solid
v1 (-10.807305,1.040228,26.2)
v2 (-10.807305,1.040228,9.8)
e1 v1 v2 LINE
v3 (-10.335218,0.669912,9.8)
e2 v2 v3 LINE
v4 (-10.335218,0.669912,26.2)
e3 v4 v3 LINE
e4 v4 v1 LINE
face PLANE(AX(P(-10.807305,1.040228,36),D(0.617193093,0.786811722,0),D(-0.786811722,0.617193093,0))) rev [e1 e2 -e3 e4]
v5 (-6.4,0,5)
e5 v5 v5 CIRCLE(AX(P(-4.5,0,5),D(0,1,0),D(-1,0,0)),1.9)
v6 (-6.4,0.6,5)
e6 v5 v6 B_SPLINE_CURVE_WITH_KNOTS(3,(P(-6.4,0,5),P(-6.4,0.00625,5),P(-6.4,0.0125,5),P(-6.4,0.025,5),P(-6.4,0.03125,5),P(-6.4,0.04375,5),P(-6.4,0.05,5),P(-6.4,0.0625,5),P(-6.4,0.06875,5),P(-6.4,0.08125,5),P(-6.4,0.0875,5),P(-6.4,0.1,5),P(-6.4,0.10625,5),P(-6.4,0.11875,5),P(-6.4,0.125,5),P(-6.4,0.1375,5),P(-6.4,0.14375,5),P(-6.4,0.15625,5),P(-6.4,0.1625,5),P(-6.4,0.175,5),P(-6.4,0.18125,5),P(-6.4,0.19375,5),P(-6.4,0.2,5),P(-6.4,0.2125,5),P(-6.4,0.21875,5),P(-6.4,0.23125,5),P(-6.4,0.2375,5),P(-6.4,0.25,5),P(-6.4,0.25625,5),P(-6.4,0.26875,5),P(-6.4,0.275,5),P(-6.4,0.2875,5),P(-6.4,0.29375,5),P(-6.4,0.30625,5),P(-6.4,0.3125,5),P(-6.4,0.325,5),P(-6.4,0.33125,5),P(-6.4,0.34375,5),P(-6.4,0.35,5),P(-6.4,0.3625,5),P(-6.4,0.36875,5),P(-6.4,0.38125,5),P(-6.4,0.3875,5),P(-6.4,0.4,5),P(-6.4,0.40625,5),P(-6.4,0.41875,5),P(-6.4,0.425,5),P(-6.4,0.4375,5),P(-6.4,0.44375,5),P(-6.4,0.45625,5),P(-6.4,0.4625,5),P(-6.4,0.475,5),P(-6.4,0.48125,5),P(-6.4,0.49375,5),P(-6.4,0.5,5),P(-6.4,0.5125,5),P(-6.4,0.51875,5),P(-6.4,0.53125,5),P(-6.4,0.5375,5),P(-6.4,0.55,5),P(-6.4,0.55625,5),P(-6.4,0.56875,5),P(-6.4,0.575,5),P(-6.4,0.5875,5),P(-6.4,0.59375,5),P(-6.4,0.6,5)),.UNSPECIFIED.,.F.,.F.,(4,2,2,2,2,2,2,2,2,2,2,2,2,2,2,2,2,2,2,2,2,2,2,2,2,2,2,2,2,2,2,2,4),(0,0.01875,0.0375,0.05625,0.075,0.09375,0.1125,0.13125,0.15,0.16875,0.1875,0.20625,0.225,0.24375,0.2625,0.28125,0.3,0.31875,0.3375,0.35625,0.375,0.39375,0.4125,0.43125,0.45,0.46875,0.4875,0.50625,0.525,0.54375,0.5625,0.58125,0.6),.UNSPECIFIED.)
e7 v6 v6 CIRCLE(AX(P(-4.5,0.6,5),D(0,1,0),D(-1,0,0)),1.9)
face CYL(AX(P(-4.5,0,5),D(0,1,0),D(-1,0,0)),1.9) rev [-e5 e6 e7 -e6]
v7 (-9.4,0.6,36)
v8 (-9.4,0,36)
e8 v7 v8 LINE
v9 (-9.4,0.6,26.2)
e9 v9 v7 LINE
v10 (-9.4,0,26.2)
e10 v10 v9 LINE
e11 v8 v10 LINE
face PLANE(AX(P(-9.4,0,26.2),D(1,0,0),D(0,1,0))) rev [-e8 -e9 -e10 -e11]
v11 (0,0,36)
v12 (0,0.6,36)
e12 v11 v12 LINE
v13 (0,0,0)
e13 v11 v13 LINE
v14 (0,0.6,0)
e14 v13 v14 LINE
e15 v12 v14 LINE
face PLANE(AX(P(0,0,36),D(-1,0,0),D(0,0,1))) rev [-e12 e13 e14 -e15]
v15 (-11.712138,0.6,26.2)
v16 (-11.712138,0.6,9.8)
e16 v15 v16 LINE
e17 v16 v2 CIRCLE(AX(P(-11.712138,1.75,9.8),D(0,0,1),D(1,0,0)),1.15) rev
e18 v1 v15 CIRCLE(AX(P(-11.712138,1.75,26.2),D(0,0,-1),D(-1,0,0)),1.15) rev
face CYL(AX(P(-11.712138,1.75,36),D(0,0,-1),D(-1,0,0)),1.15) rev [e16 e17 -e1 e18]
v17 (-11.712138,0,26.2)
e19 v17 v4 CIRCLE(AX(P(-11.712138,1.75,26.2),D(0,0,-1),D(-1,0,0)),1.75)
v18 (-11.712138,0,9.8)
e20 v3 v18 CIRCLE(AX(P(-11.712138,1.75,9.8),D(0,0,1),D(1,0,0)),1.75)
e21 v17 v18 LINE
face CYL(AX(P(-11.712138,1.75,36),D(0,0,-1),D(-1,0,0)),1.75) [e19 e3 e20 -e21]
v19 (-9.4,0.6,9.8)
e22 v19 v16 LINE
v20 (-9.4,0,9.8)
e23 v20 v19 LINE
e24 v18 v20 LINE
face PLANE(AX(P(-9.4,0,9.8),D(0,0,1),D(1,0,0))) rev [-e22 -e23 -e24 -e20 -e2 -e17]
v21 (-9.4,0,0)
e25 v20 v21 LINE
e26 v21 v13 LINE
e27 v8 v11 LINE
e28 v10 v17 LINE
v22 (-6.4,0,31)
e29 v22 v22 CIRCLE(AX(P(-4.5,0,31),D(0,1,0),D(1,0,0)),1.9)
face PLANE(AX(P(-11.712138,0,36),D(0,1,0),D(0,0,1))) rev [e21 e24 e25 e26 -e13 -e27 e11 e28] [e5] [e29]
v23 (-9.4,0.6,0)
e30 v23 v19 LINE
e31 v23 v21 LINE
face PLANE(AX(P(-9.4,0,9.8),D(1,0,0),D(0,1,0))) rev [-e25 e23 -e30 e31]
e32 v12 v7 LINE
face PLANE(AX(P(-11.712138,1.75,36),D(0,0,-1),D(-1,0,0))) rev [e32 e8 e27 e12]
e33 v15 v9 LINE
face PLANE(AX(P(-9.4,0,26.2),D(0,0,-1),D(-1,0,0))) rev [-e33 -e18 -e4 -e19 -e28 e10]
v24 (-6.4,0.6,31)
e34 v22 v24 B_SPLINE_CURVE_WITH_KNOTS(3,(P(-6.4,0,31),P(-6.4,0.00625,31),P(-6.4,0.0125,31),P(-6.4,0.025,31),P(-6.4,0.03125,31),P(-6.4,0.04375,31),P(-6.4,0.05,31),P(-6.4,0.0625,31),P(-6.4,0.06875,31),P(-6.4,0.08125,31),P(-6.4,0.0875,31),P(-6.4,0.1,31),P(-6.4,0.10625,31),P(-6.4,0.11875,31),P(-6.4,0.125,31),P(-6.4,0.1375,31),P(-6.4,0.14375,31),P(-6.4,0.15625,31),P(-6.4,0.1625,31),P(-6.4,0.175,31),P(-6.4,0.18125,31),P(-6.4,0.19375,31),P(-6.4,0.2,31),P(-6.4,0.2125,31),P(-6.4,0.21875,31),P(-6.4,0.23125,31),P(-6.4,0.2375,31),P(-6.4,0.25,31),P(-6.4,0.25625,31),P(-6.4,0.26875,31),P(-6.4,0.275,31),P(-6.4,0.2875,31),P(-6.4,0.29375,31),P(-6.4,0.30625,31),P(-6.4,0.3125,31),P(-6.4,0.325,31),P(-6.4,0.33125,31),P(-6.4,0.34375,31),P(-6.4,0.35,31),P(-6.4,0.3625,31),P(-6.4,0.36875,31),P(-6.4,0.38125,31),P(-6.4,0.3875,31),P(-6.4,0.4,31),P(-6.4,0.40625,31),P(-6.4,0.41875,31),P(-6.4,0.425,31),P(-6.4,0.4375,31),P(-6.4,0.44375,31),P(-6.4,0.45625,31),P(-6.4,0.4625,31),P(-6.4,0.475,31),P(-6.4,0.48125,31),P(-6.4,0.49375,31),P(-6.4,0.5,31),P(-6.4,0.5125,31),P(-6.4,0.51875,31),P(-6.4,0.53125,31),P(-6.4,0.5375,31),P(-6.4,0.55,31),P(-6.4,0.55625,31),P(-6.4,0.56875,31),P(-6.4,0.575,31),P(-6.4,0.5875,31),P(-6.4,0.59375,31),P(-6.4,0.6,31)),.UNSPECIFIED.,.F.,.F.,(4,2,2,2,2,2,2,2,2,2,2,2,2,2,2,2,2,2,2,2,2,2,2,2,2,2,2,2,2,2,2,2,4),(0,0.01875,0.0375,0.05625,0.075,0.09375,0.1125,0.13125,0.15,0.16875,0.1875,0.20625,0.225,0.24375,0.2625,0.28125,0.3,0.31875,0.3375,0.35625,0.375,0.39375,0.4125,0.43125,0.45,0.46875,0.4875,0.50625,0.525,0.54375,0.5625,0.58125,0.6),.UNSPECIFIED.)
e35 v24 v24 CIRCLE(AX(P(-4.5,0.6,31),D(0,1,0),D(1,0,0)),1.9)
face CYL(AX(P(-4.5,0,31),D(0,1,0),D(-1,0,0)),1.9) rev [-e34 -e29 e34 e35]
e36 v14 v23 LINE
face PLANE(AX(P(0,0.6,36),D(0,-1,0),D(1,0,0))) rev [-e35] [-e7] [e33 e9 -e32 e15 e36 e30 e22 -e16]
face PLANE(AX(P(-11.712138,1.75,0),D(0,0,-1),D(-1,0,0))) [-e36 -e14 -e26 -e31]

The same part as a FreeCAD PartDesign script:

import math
import FreeCAD as App
import Part
import Sketcher

V = App.Vector
Q = App.Units.Quantity

doc = App.newDocument("Part")
params = doc.addObject("Spreadsheet::Sheet", "Params")
for row, (alias, value) in enumerate([
    ("sketch1_radius", "1.15 mm"),
    ("sketch1_radius2", "1.75 mm"),
    ("pad1_length", "36 mm"),
    ("sketch2_diameter", "3.8 mm"),
], start=1):
    params.set(f"A{row}", alias)
    params.set(f"B{row}", "=" + value)
    params.setAlias(f"B{row}", alias)

body = doc.addObject("PartDesign::Body", "Body")

# Sketch on XY plane
sketch1 = body.newObject("Sketcher::SketchObject", "Sketch")
sketch1.AttachmentSupport = (doc.getObject("XY_Plane"), [""])
sketch1.MapMode = "FlatFace"
sketch1.addGeometry([
    Part.LineSegment(V(0, 0, 0), V(0, 0.6, 0)),  # 0
    Part.LineSegment(V(0, 0.6, 0), V(-11.712138, 0.6, 0)),  # 1
    Part.ArcOfCircle(Part.Circle(V(-11.712138, 1.75, 0), V(0, 0, 1), 1.15), math.radians(-38.111448), math.radians(270)),  # 2
    Part.LineSegment(V(-10.807305, 1.040228, 0), V(-10.335218, 0.669912, 0)),  # 3
    Part.ArcOfCircle(Part.Circle(V(-11.712138, 1.75, 0), V(0, 0, 1), 1.75), math.radians(-38.111448), math.radians(270)),  # 4
    Part.LineSegment(V(-11.712138, 0, 0), V(0, 0, 0)),  # 5
], False)
sketch1.addConstraint([
    Sketcher.Constraint("Coincident", 0, 2, 1, 1),
    Sketcher.Constraint("Tangent", 1, 2, 2, 2),
    Sketcher.Constraint("Coincident", 2, 1, 3, 1),
    Sketcher.Constraint("Coincident", 3, 2, 4, 1),
    Sketcher.Constraint("Tangent", 4, 2, 5, 1),
    Sketcher.Constraint("Coincident", 5, 2, 0, 1),
    Sketcher.Constraint("Vertical", 0),
    Sketcher.Constraint("Horizontal", 1),
    Sketcher.Constraint("Horizontal", 5),
    Sketcher.Constraint("Coincident", 5, 2, -1, 1),
    Sketcher.Constraint("Coincident", 4, 3, 2, 3),
    Sketcher.Constraint("Radius", 2, Q("1.15 mm")),
    Sketcher.Constraint("Radius", 4, Q("1.75 mm")),
    Sketcher.Constraint("DistanceX", 1, 2, 1, 1, Q("11.712138 mm")),
    Sketcher.Constraint("DistanceX", 1, 2, 3, 2, Q("1.376921 mm")),
    Sketcher.Constraint("DistanceX", 2, 1, -1, 1, Q("10.807305 mm")),
])
sketch1.setExpression("Constraints[11]", "Params.sketch1_radius")
sketch1.setExpression("Constraints[12]", "Params.sketch1_radius2")
pad1 = body.newObject("PartDesign::Pad", "Pad")
pad1.Profile = sketch1
pad1.setExpression("Length", "Params.pad1_length")

# Sketch on XZ plane
sketch2 = body.newObject("Sketcher::SketchObject", "Sketch001")
sketch2.AttachmentSupport = (doc.getObject("XZ_Plane"), [""])
sketch2.MapMode = "FlatFace"
sketch2.AttachmentOffset = App.Placement(V(0, 0, -0.6), App.Rotation())
sketch2.addGeometry([
    Part.Circle(V(-4.5, 5, 0), V(0, 0, 1), 1.9),
    Part.Circle(V(-4.5, 31, 0), V(0, 0, 1), 1.9),
], False)
sketch2.addConstraint([
    Sketcher.Constraint("Equal", 0, 1),
    Sketcher.Constraint("Vertical", 0, 3, 1, 3),
    Sketcher.Constraint("Diameter", 0, Q("3.8 mm")),
    Sketcher.Constraint("DistanceY", -1, 1, 0, 3, Q("5 mm")),
    Sketcher.Constraint("DistanceY", -1, 1, 1, 3, Q("31 mm")),
    Sketcher.Constraint("DistanceX", 0, 3, -1, 1, Q("4.5 mm")),
])
sketch2.setExpression("Constraints[2]", "Params.sketch2_diameter")
pocket1 = body.newObject("PartDesign::Pocket", "Pocket")
pocket1.Profile = sketch2
pocket1.Type = "ThroughAll"
pocket1.Reversed = True

# Sketch on XZ plane
sketch3 = body.newObject("Sketcher::SketchObject", "Sketch002")
sketch3.AttachmentSupport = (doc.getObject("XZ_Plane"), [""])
sketch3.MapMode = "FlatFace"
sketch3.AttachmentOffset = App.Placement(V(0, 0, -0.6), App.Rotation())
sketch3.addGeometry([
    Part.LineSegment(V(-16.178348, -1.007071, 0), V(-16.178348, 9.8, 0)),  # 0
    Part.LineSegment(V(-16.178348, 9.8, 0), V(-9.4, 9.8, 0)),  # 1
    Part.LineSegment(V(-9.4, 9.8, 0), V(-9.4, -1.007071, 0)),  # 2
    Part.LineSegment(V(-9.4, -1.007071, 0), V(-16.178348, -1.007071, 0)),  # 3
    Part.LineSegment(V(-18.280524, 26.2, 0), V(-18.280524, 36.932304, 0)),  # 4
    Part.LineSegment(V(-18.280524, 36.932304, 0), V(-9.4, 36.932304, 0)),  # 5
    Part.LineSegment(V(-9.4, 36.932304, 0), V(-9.4, 26.2, 0)),  # 6
    Part.LineSegment(V(-9.4, 26.2, 0), V(-18.280524, 26.2, 0)),  # 7
], False)
sketch3.addConstraint([
    Sketcher.Constraint("Coincident", 0, 2, 1, 1),
    Sketcher.Constraint("Coincident", 1, 2, 2, 1),
    Sketcher.Constraint("Coincident", 2, 2, 3, 1),
    Sketcher.Constraint("Coincident", 3, 2, 0, 1),
    Sketcher.Constraint("Coincident", 4, 2, 5, 1),
    Sketcher.Constraint("Coincident", 5, 2, 6, 1),
    Sketcher.Constraint("Coincident", 6, 2, 7, 1),
    Sketcher.Constraint("Coincident", 7, 2, 4, 1),
    Sketcher.Constraint("Vertical", 0),
    Sketcher.Constraint("Horizontal", 1),
    Sketcher.Constraint("Vertical", 2),
    Sketcher.Constraint("Horizontal", 3),
    Sketcher.Constraint("Vertical", 4),
    Sketcher.Constraint("Horizontal", 5),
    Sketcher.Constraint("Vertical", 6),
    Sketcher.Constraint("Horizontal", 7),
    Sketcher.Constraint("Vertical", 2, 2, 5, 2),
    Sketcher.Constraint("DistanceY", -1, 1, 0, 2, Q("9.8 mm")),
    Sketcher.Constraint("DistanceX", 1, 2, -1, 1, Q("9.4 mm")),
    Sketcher.Constraint("DistanceY", -1, 1, 6, 2, Q("26.2 mm")),
    Sketcher.Constraint("DistanceX", 1, 1, 1, 2, Q("6.778348 mm")),
    Sketcher.Constraint("DistanceY", 0, 1, 0, 2, Q("10.807071 mm")),
    Sketcher.Constraint("DistanceX", 5, 1, 5, 2, Q("8.880524 mm")),
    Sketcher.Constraint("DistanceY", 4, 1, 4, 2, Q("10.732304 mm")),
])
pocket2 = body.newObject("PartDesign::Pocket", "Pocket001")
pocket2.Profile = sketch3
pocket2.Type = "ThroughAll"
pocket2.Midplane = True

doc.recompute()
